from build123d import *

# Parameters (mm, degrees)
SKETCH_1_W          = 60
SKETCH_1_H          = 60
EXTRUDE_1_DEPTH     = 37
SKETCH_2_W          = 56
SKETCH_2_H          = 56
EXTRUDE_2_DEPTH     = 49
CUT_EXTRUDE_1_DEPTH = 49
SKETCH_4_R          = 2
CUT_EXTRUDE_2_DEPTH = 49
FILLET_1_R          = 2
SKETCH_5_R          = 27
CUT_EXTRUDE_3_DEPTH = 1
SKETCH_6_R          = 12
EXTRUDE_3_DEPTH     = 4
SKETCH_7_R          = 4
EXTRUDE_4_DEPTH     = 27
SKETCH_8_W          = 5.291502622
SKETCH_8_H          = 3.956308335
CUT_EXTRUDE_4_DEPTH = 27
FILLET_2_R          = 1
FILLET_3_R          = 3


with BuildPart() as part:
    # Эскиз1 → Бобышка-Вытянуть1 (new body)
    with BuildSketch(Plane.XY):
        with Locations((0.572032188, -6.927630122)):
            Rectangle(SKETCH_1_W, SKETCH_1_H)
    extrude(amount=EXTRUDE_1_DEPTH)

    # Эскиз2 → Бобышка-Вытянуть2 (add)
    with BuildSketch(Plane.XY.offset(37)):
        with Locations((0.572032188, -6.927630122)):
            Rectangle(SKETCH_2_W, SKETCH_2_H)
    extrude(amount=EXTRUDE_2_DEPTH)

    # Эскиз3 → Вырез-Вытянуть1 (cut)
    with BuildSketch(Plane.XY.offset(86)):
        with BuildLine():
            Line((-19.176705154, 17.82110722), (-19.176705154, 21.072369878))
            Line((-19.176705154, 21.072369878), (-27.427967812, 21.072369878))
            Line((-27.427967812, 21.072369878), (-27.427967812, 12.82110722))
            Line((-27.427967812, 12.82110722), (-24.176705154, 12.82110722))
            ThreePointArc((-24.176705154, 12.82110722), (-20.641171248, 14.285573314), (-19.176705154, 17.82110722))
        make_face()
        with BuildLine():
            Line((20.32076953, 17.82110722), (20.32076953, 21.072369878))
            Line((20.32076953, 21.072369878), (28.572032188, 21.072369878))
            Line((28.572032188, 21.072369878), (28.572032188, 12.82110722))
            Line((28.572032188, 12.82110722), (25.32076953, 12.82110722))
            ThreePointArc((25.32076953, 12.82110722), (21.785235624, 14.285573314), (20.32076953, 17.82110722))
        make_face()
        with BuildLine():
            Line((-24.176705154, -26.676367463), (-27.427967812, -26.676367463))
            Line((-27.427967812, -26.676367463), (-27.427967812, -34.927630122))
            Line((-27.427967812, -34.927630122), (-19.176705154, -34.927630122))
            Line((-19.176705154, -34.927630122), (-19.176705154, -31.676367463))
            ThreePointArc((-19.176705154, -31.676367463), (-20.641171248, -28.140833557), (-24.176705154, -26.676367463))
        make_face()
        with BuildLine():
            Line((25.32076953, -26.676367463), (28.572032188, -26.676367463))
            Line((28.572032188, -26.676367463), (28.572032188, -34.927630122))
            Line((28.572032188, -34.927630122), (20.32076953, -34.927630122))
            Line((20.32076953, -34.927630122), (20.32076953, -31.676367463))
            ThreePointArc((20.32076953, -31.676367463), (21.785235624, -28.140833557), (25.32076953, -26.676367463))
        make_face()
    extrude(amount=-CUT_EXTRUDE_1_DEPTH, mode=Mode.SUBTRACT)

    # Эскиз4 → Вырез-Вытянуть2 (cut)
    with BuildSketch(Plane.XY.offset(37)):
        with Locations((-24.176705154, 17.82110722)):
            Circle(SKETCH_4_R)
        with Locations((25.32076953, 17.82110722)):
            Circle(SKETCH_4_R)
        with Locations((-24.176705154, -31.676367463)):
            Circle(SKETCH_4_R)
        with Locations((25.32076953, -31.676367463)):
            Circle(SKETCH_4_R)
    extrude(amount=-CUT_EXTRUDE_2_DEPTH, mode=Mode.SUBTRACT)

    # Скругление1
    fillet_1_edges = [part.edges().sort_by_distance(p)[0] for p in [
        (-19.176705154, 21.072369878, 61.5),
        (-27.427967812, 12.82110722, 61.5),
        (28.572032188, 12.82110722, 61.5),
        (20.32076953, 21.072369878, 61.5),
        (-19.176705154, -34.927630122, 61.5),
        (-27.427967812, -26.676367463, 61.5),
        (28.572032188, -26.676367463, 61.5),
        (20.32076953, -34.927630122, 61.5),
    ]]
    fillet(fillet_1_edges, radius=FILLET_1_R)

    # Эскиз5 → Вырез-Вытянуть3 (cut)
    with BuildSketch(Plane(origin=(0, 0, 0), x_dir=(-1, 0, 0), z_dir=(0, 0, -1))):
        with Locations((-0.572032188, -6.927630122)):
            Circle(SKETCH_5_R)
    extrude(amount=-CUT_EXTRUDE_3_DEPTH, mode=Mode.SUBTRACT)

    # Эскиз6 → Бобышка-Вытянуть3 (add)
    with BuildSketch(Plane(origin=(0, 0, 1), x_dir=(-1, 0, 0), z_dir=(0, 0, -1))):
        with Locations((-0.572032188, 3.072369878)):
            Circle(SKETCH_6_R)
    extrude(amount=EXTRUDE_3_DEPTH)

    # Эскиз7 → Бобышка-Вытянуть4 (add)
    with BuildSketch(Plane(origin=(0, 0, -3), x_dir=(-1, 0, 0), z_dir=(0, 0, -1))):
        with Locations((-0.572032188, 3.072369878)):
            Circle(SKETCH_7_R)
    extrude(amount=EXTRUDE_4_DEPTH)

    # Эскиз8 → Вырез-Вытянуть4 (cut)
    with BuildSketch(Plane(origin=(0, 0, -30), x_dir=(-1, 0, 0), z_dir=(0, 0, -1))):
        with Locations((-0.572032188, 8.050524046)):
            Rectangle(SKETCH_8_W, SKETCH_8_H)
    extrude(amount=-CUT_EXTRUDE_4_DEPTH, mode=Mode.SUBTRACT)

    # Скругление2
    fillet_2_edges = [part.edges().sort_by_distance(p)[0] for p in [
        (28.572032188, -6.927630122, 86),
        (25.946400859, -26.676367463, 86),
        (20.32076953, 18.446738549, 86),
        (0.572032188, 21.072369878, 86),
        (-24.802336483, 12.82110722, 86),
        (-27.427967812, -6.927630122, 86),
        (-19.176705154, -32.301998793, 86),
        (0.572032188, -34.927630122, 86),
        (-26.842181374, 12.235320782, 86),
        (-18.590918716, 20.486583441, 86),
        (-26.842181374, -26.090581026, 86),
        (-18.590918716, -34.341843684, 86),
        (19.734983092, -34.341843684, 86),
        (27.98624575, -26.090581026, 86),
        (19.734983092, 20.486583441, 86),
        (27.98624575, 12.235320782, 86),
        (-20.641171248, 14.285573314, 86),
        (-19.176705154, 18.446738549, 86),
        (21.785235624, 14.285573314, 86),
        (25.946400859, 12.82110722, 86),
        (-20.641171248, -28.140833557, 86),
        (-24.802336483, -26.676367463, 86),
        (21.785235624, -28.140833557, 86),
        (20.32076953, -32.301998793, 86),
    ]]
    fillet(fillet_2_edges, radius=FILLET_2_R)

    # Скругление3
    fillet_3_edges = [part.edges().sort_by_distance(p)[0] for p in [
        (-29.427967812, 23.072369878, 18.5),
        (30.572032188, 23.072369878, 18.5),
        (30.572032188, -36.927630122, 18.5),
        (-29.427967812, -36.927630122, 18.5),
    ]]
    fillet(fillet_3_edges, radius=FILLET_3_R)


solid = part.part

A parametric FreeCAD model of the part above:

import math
import FreeCAD as App
import Part
import Sketcher

V = App.Vector
Q = App.Units.Quantity


def edges_at(feature, points):
    """Names of the edges that pass closest to the given points."""
    edges = feature.Shape.Edges
    near = lambda p: min(range(len(edges)), key=lambda i: edges[i].distToShape(Part.Vertex(*p))[0])
    return sorted({f"Edge{near(p) + 1}" for p in points})

doc = App.newDocument("Part")
body = doc.addObject("PartDesign::Body", "Body")

sketch1 = body.newObject("Sketcher::SketchObject", "Sketch")
sketch1.AttachmentSupport = (doc.getObject("XY_Plane"), [""])
sketch1.MapMode = "FlatFace"
sketch1.addGeometry(Part.LineSegment(V(-29, 23, 0), V(-29, -37, 0)), False)
sketch1.addGeometry(Part.LineSegment(V(-29, -37, 0), V(31, -37, 0)), False)
sketch1.addGeometry(Part.LineSegment(V(31, -37, 0), V(31, 23, 0)), False)
sketch1.addGeometry(Part.LineSegment(V(31, 23, 0), V(-29, 23, 0)), False)
sketch1.addConstraint(Sketcher.Constraint("Coincident", 0, 2, 1, 1))
sketch1.addConstraint(Sketcher.Constraint("Coincident", 1, 2, 2, 1))
sketch1.addConstraint(Sketcher.Constraint("Coincident", 2, 2, 3, 1))
sketch1.addConstraint(Sketcher.Constraint("Coincident", 3, 2, 0, 1))
sketch1.addConstraint(Sketcher.Constraint("Vertical", 0))
sketch1.addConstraint(Sketcher.Constraint("Horizontal", 1))
sketch1.addConstraint(Sketcher.Constraint("Vertical", 2))
sketch1.addConstraint(Sketcher.Constraint("Horizontal", 3))
sketch1.addConstraint(Sketcher.Constraint("Equal", 3, 0))
sketch1.addConstraint(Sketcher.Constraint("DistanceX", 1, 1, 1, 2, Q("60 mm")))
sketch1.addConstraint(Sketcher.Constraint("DistanceY", 0, 2, -1, 1, Q("36.92763 mm")))
sketch1.addConstraint(Sketcher.Constraint("DistanceX", 0, 2, -1, 1, Q("29.427968 mm")))
pad1 = body.newObject("PartDesign::Pad", "Pad")
pad1.Profile = sketch1
pad1.Length = 37

sketch2 = body.newObject("Sketcher::SketchObject", "Sketch001")
sketch2.AttachmentSupport = (doc.getObject("XY_Plane"), [""])
sketch2.MapMode = "FlatFace"
sketch2.AttachmentOffset = App.Placement(V(0, 0, 37), App.Rotation())
sketch2.addGeometry(Part.LineSegment(V(-27, 21, 0), V(-27, -35, 0)), False)
sketch2.addGeometry(Part.LineSegment(V(-27, -35, 0), V(29, -35, 0)), False)
sketch2.addGeometry(Part.LineSegment(V(29, -35, 0), V(29, 21, 0)), False)
sketch2.addGeometry(Part.LineSegment(V(29, 21, 0), V(-27, 21, 0)), False)
sketch2.addConstraint(Sketcher.Constraint("Coincident", 0, 2, 1, 1))
sketch2.addConstraint(Sketcher.Constraint("Coincident", 1, 2, 2, 1))
sketch2.addConstraint(Sketcher.Constraint("Coincident", 2, 2, 3, 1))
sketch2.addConstraint(Sketcher.Constraint("Coincident", 3, 2, 0, 1))
sketch2.addConstraint(Sketcher.Constraint("Vertical", 0))
sketch2.addConstraint(Sketcher.Constraint("Horizontal", 1))
sketch2.addConstraint(Sketcher.Constraint("Vertical", 2))
sketch2.addConstraint(Sketcher.Constraint("Horizontal", 3))
sketch2.addConstraint(Sketcher.Constraint("Equal", 3, 0))
sketch2.addConstraint(Sketcher.Constraint("DistanceX", 1, 1, 1, 2, Q("56 mm")))
sketch2.addConstraint(Sketcher.Constraint("DistanceY", 0, 2, -1, 1, Q("34.92763 mm")))
sketch2.addConstraint(Sketcher.Constraint("DistanceX", 0, 2, -1, 1, Q("27.427968 mm")))
pad2 = body.newObject("PartDesign::Pad", "Pad001")
pad2.Profile = sketch2
pad2.Length = 49

sketch3 = body.newObject("Sketcher::SketchObject", "Sketch002")
sketch3.AttachmentSupport = (doc.getObject("XY_Plane"), [""])
sketch3.MapMode = "FlatFace"
sketch3.AttachmentOffset = App.Placement(V(0, 0, 86), App.Rotation())
sketch3.addGeometry(Part.LineSegment(V(-19.2, 17.8, 0), V(-19.2, 21.1, 0)), False)
sketch3.addGeometry(Part.LineSegment(V(-19.2, 21.1, 0), V(-27.4, 21.1, 0)), False)
sketch3.addGeometry(Part.LineSegment(V(-27.4, 21.1, 0), V(-27.4, 12.8, 0)), False)
sketch3.addGeometry(Part.LineSegment(V(-27.4, 12.8, 0), V(-24.2, 12.8, 0)), False)
sketch3.addGeometry(Part.ArcOfCircle(Part.Circle(V(-24.2, 17.8, 0), V(0, 0, 1), 5), math.radians(-90), math.radians(0)), False)
sketch3.addGeometry(Part.LineSegment(V(20.3, 21.1, 0), V(20.3, 17.8, 0)), False)
sketch3.addGeometry(Part.ArcOfCircle(Part.Circle(V(25.3, 17.8, 0), V(0, 0, 1), 5), math.radians(180), math.radians(270)), False)
sketch3.addGeometry(Part.LineSegment(V(25.3, 12.8, 0), V(28.6, 12.8, 0)), False)
sketch3.addGeometry(Part.LineSegment(V(28.6, 12.8, 0), V(28.6, 21.1, 0)), False)
sketch3.addGeometry(Part.LineSegment(V(28.6, 21.1, 0), V(20.3, 21.1, 0)), False)
sketch3.addGeometry(Part.LineSegment(V(-24.2, -26.7, 0), V(-27.4, -26.7, 0)), False)
sketch3.addGeometry(Part.LineSegment(V(-27.4, -26.7, 0), V(-27.4, -34.9, 0)), False)
sketch3.addGeometry(Part.LineSegment(V(-27.4, -34.9, 0), V(-19.2, -34.9, 0)), False)
sketch3.addGeometry(Part.LineSegment(V(-19.2, -34.9, 0), V(-19.2, -31.7, 0)), False)
sketch3.addGeometry(Part.ArcOfCircle(Part.Circle(V(-24.2, -31.7, 0), V(0, 0, 1), 5), math.radians(0), math.radians(90)), False)
sketch3.addGeometry(Part.LineSegment(V(28.6, -26.7, 0), V(25.3, -26.7, 0)), False)
sketch3.addGeometry(Part.ArcOfCircle(Part.Circle(V(25.3, -31.7, 0), V(0, 0, 1), 5), math.radians(90), math.radians(180)), False)
sketch3.addGeometry(Part.LineSegment(V(20.3, -31.7, 0), V(20.3, -34.9, 0)), False)
sketch3.addGeometry(Part.LineSegment(V(20.3, -34.9, 0), V(28.6, -34.9, 0)), False)
sketch3.addGeometry(Part.LineSegment(V(28.6, -34.9, 0), V(28.6, -26.7, 0)), False)
sketch3.addConstraint(Sketcher.Constraint("Coincident", 0, 2, 1, 1))
sketch3.addConstraint(Sketcher.Constraint("Coincident", 1, 2, 2, 1))
sketch3.addConstraint(Sketcher.Constraint("Coincident", 2, 2, 3, 1))
sketch3.addConstraint(Sketcher.Constraint("Tangent", 3, 2, 4, 1))
sketch3.addConstraint(Sketcher.Constraint("Tangent", 4, 2, 0, 1))
sketch3.addConstraint(Sketcher.Constraint("Tangent", 5, 2, 6, 1))
sketch3.addConstraint(Sketcher.Constraint("Tangent", 6, 2, 7, 1))
sketch3.addConstraint(Sketcher.Constraint("Coincident", 7, 2, 8, 1))
sketch3.addConstraint(Sketcher.Constraint("Coincident", 8, 2, 9, 1))
sketch3.addConstraint(Sketcher.Constraint("Coincident", 9, 2, 5, 1))
sketch3.addConstraint(Sketcher.Constraint("Coincident", 10, 2, 11, 1))
sketch3.addConstraint(Sketcher.Constraint("Coincident", 11, 2, 12, 1))
sketch3.addConstraint(Sketcher.Constraint("Coincident", 12, 2, 13, 1))
sketch3.addConstraint(Sketcher.Constraint("Tangent", 13, 2, 14, 1))
sketch3.addConstraint(Sketcher.Constraint("Tangent", 14, 2, 10, 1))
sketch3.addConstraint(Sketcher.Constraint("Tangent", 15, 2, 16, 1))
sketch3.addConstraint(Sketcher.Constraint("Tangent", 16, 2, 17, 1))
sketch3.addConstraint(Sketcher.Constraint("Coincident", 17, 2, 18, 1))
sketch3.addConstraint(Sketcher.Constraint("Coincident", 18, 2, 19, 1))
sketch3.addConstraint(Sketcher.Constraint("Coincident", 19, 2, 15, 1))
sketch3.addConstraint(Sketcher.Constraint("Vertical", 0))
sketch3.addConstraint(Sketcher.Constraint("Horizontal", 1))
sketch3.addConstraint(Sketcher.Constraint("Vertical", 2))
sketch3.addConstraint(Sketcher.Constraint("Horizontal", 3))
sketch3.addConstraint(Sketcher.Constraint("Vertical", 5))
sketch3.addConstraint(Sketcher.Constraint("Horizontal", 7))
sketch3.addConstraint(Sketcher.Constraint("Vertical", 8))
sketch3.addConstraint(Sketcher.Constraint("Horizontal", 9))
sketch3.addConstraint(Sketcher.Constraint("Horizontal", 10))
sketch3.addConstraint(Sketcher.Constraint("Vertical", 11))
sketch3.addConstraint(Sketcher.Constraint("Horizontal", 12))
sketch3.addConstraint(Sketcher.Constraint("Vertical", 13))
sketch3.addConstraint(Sketcher.Constraint("Horizontal", 15))
sketch3.addConstraint(Sketcher.Constraint("Vertical", 17))
sketch3.addConstraint(Sketcher.Constraint("Horizontal", 18))
sketch3.addConstraint(Sketcher.Constraint("Vertical", 19))
sketch3.addConstraint(Sketcher.Constraint("Equal", 4, 6))
sketch3.addConstraint(Sketcher.Constraint("Equal", 6, 14))
sketch3.addConstraint(Sketcher.Constraint("Equal", 14, 16))
sketch3.addConstraint(Sketcher.Constraint("Horizontal", 4, 3, 6, 3))
sketch3.addConstraint(Sketcher.Constraint("Horizontal", 14, 3, 16, 3))
sketch3.addConstraint(Sketcher.Constraint("Horizontal", 1, 2, 8, 2))
sketch3.addConstraint(Sketcher.Constraint("Horizontal", 12, 2, 17, 2))
sketch3.addConstraint(Sketcher.Constraint("Vertical", 4, 3, 14, 3))
sketch3.addConstraint(Sketcher.Constraint("Vertical", 6, 3, 16, 3))
sketch3.addConstraint(Sketcher.Constraint("Vertical", 2, 2, 10, 2))
sketch3.addConstraint(Sketcher.Constraint("Vertical", 8, 2, 18, 2))
sketch3.addConstraint(Sketcher.Constraint("Equal", 3, 7))
sketch3.addConstraint(Sketcher.Constraint("Equal", 15, 0))
sketch3.addConstraint(Sketcher.Constraint("Equal", 8, 11))
sketch3.addConstraint(Sketcher.Constraint("Radius", 4, Q("5 mm")))
sketch3.addConstraint(Sketcher.Constraint("DistanceX", 1, 2, 1, 1, Q("8.251263 mm")))
sketch3.addConstraint(Sketcher.Constraint("DistanceX", -1, 1, 6, 3, Q("25.32077 mm")))
sketch3.addConstraint(Sketcher.Constraint("DistanceY", -1, 1, 0, 2, Q("21.07237 mm")))
sketch3.addConstraint(Sketcher.Constraint("DistanceY", 11, 2, -1, 1, Q("34.92763 mm")))
sketch3.addConstraint(Sketcher.Constraint("DistanceX", 4, 3, -1, 1, Q("24.176705 mm")))
pocket1 = body.newObject("PartDesign::Pocket", "Pocket")
pocket1.Profile = sketch3
pocket1.Length = 49

sketch4 = body.newObject("Sketcher::SketchObject", "Sketch003")
sketch4.AttachmentSupport = (doc.getObject("XY_Plane"), [""])
sketch4.MapMode = "FlatFace"
sketch4.AttachmentOffset = App.Placement(V(0, 0, 37), App.Rotation())
sketch4.addGeometry(Part.Circle(V(-24.2, 17.8, 0), V(0, 0, 1), 2), False)
sketch4.addGeometry(Part.Circle(V(25.3, 17.8, 0), V(0, 0, 1), 2), False)
sketch4.addGeometry(Part.Circle(V(-24.2, -31.7, 0), V(0, 0, 1), 2), False)
sketch4.addGeometry(Part.Circle(V(25.3, -31.7, 0), V(0, 0, 1), 2), False)
sketch4.addConstraint(Sketcher.Constraint("Equal", 0, 1))
sketch4.addConstraint(Sketcher.Constraint("Equal", 1, 2))
sketch4.addConstraint(Sketcher.Constraint("Equal", 2, 3))
sketch4.addConstraint(Sketcher.Constraint("Horizontal", 0, 3, 1, 3))
sketch4.addConstraint(Sketcher.Constraint("Horizontal", 2, 3, 3, 3))
sketch4.addConstraint(Sketcher.Constraint("Vertical", 0, 3, 2, 3))
sketch4.addConstraint(Sketcher.Constraint("Vertical", 1, 3, 3, 3))
sketch4.addConstraint(Sketcher.Constraint("Diameter", 0, Q("4 mm")))
sketch4.addConstraint(Sketcher.Constraint("DistanceX", -1, 1, 1, 3, Q("25.32077 mm")))
sketch4.addConstraint(Sketcher.Constraint("DistanceX", 0, 3, -1, 1, Q("24.176705 mm")))
sketch4.addConstraint(Sketcher.Constraint("DistanceY", -1, 1, 0, 3, Q("17.821107 mm")))
sketch4.addConstraint(Sketcher.Constraint("DistanceY", 2, 3, -1, 1, Q("31.676367 mm")))
pocket2 = body.newObject("PartDesign::Pocket", "Pocket001")
pocket2.Profile = sketch4
pocket2.Length = 49
doc.recompute()

fillet = body.newObject("PartDesign::Fillet", "Fillet")
fillet.Base = (pocket2, edges_at(pocket2, [
    (-19.177, 21.072, 61.5),
    (-27.428, 12.821, 61.5),
    (28.572, 12.821, 61.5),
    (20.321, 21.072, 61.5),
    (-19.177, -34.928, 61.5),
    (-27.428, -26.676, 61.5),
    (28.572, -26.676, 61.5),
    (20.321, -34.928, 61.5),
]))
fillet.Radius = 2

sketch5 = body.newObject("Sketcher::SketchObject", "Sketch004")
sketch5.AttachmentSupport = (doc.getObject("XY_Plane"), [""])
sketch5.MapMode = "FlatFace"
sketch5.addGeometry(Part.Circle(V(1, -7, 0), V(0, 0, 1), 27), False)
sketch5.addConstraint(Sketcher.Constraint("Diameter", 0, Q("54 mm")))
sketch5.addConstraint(Sketcher.Constraint("DistanceY", 0, 3, -1, 1, Q("6.92763 mm")))
sketch5.addConstraint(Sketcher.Constraint("DistanceX", -1, 1, 0, 3, Q("0.572032 mm")))
pocket3 = body.newObject("PartDesign::Pocket", "Pocket002")
pocket3.Profile = sketch5
pocket3.Length = 1
pocket3.Reversed = True

sketch6 = body.newObject("Sketcher::SketchObject", "Sketch005")
sketch6.AttachmentSupport = (doc.getObject("XY_Plane"), [""])
sketch6.MapMode = "FlatFace"
sketch6.AttachmentOffset = App.Placement(V(0, 0, 1), App.Rotation())
sketch6.addGeometry(Part.Circle(V(1, 3, 0), V(0, 0, 1), 12), False)
sketch6.addConstraint(Sketcher.Constraint("Diameter", 0, Q("24 mm")))
sketch6.addConstraint(Sketcher.Constraint("DistanceY", -1, 1, 0, 3, Q("3.07237 mm")))
sketch6.addConstraint(Sketcher.Constraint("DistanceX", -1, 1, 0, 3, Q("0.572032 mm")))
pad3 = body.newObject("PartDesign::Pad", "Pad002")
pad3.Profile = sketch6
pad3.Length = 4
pad3.Reversed = True

sketch7 = body.newObject("Sketcher::SketchObject", "Sketch006")
sketch7.AttachmentSupport = (doc.getObject("XY_Plane"), [""])
sketch7.MapMode = "FlatFace"
sketch7.AttachmentOffset = App.Placement(V(0, 0, -3), App.Rotation())
sketch7.addGeometry(Part.Circle(V(0.6, 3.1, 0), V(0, 0, 1), 4), False)
sketch7.addConstraint(Sketcher.Constraint("Diameter", 0, Q("8 mm")))
sketch7.addConstraint(Sketcher.Constraint("DistanceY", -1, 1, 0, 3, Q("3.07237 mm")))
sketch7.addConstraint(Sketcher.Constraint("DistanceX", -1, 1, 0, 3, Q("0.572032 mm")))
pad4 = body.newObject("PartDesign::Pad", "Pad003")
pad4.Profile = sketch7
pad4.Length = 27
pad4.Reversed = True

sketch8 = body.newObject("Sketcher::SketchObject", "Sketch007")
sketch8.AttachmentSupport = (doc.getObject("XY_Plane"), [""])
sketch8.MapMode = "FlatFace"
sketch8.AttachmentOffset = App.Placement(V(0, 0, -30), App.Rotation())
sketch8.addGeometry(Part.LineSegment(V(3.2, 10, 0), V(3.2, 6.1, 0)), False)
sketch8.addGeometry(Part.LineSegment(V(3.2, 6.1, 0), V(-2.1, 6.1, 0)), False)
sketch8.addGeometry(Part.LineSegment(V(-2.1, 6.1, 0), V(-2.1, 10, 0)), False)
sketch8.addGeometry(Part.LineSegment(V(-2.1, 10, 0), V(3.2, 10, 0)), False)
sketch8.addConstraint(Sketcher.Constraint("Coincident", 0, 2, 1, 1))
sketch8.addConstraint(Sketcher.Constraint("Coincident", 1, 2, 2, 1))
sketch8.addConstraint(Sketcher.Constraint("Coincident", 2, 2, 3, 1))
sketch8.addConstraint(Sketcher.Constraint("Coincident", 3, 2, 0, 1))
sketch8.addConstraint(Sketcher.Constraint("Vertical", 0))
sketch8.addConstraint(Sketcher.Constraint("Horizontal", 1))
sketch8.addConstraint(Sketcher.Constraint("Vertical", 2))
sketch8.addConstraint(Sketcher.Constraint("Horizontal", 3))
sketch8.addConstraint(Sketcher.Constraint("DistanceY", 0, 2, 0, 1, Q("3.956308 mm")))
sketch8.addConstraint(Sketcher.Constraint("DistanceX", 1, 2, 1, 1, Q("5.291503 mm")))
sketch8.addConstraint(Sketcher.Constraint("DistanceY", -1, 1, 0, 2, Q("6.07237 mm")))
sketch8.addConstraint(Sketcher.Constraint("DistanceX", 1, 2, -1, 1, Q("2.073719 mm")))
pocket4 = body.newObject("PartDesign::Pocket", "Pocket003")
pocket4.Profile = sketch8
pocket4.Length = 27
pocket4.Reversed = True
doc.recompute()

fillet2 = body.newObject("PartDesign::Fillet", "Fillet001")
fillet2.Base = (pocket4, edges_at(pocket4, [
    (28.572, -6.928, 86),
    (25.946, -26.676, 86),
    (20.321, 18.447, 86),
    (0.572, 21.072, 86),
    (-24.802, 12.821, 86),
    (-27.428, -6.928, 86),
    (-19.177, -32.302, 86),
    (0.572, -34.928, 86),
    (-26.842, 12.235, 86),
    (-18.591, 20.487, 86),
    (-26.842, -26.091, 86),
    (-18.591, -34.342, 86),
    (19.735, -34.342, 86),
    (27.986, -26.091, 86),
    (19.735, 20.487, 86),
    (27.986, 12.235, 86),
    (-20.641, 14.286, 86),
    (-19.177, 18.447, 86),
    (21.785, 14.286, 86),
    (25.946, 12.821, 86),
    (-20.641, -28.141, 86),
    (-24.802, -26.676, 86),
    (21.785, -28.141, 86),
    (20.321, -32.302, 86),
]))
fillet2.Radius = 1
doc.recompute()

fillet3 = body.newObject("PartDesign::Fillet", "Fillet002")
fillet3.Base = (fillet2, edges_at(fillet2, [
    (-29.428, 23.072, 18.5),
    (30.572, 23.072, 18.5),
    (30.572, -36.928, 18.5),
    (-29.428, -36.928, 18.5),
]))
fillet3.Radius = 3

doc.recompute()
